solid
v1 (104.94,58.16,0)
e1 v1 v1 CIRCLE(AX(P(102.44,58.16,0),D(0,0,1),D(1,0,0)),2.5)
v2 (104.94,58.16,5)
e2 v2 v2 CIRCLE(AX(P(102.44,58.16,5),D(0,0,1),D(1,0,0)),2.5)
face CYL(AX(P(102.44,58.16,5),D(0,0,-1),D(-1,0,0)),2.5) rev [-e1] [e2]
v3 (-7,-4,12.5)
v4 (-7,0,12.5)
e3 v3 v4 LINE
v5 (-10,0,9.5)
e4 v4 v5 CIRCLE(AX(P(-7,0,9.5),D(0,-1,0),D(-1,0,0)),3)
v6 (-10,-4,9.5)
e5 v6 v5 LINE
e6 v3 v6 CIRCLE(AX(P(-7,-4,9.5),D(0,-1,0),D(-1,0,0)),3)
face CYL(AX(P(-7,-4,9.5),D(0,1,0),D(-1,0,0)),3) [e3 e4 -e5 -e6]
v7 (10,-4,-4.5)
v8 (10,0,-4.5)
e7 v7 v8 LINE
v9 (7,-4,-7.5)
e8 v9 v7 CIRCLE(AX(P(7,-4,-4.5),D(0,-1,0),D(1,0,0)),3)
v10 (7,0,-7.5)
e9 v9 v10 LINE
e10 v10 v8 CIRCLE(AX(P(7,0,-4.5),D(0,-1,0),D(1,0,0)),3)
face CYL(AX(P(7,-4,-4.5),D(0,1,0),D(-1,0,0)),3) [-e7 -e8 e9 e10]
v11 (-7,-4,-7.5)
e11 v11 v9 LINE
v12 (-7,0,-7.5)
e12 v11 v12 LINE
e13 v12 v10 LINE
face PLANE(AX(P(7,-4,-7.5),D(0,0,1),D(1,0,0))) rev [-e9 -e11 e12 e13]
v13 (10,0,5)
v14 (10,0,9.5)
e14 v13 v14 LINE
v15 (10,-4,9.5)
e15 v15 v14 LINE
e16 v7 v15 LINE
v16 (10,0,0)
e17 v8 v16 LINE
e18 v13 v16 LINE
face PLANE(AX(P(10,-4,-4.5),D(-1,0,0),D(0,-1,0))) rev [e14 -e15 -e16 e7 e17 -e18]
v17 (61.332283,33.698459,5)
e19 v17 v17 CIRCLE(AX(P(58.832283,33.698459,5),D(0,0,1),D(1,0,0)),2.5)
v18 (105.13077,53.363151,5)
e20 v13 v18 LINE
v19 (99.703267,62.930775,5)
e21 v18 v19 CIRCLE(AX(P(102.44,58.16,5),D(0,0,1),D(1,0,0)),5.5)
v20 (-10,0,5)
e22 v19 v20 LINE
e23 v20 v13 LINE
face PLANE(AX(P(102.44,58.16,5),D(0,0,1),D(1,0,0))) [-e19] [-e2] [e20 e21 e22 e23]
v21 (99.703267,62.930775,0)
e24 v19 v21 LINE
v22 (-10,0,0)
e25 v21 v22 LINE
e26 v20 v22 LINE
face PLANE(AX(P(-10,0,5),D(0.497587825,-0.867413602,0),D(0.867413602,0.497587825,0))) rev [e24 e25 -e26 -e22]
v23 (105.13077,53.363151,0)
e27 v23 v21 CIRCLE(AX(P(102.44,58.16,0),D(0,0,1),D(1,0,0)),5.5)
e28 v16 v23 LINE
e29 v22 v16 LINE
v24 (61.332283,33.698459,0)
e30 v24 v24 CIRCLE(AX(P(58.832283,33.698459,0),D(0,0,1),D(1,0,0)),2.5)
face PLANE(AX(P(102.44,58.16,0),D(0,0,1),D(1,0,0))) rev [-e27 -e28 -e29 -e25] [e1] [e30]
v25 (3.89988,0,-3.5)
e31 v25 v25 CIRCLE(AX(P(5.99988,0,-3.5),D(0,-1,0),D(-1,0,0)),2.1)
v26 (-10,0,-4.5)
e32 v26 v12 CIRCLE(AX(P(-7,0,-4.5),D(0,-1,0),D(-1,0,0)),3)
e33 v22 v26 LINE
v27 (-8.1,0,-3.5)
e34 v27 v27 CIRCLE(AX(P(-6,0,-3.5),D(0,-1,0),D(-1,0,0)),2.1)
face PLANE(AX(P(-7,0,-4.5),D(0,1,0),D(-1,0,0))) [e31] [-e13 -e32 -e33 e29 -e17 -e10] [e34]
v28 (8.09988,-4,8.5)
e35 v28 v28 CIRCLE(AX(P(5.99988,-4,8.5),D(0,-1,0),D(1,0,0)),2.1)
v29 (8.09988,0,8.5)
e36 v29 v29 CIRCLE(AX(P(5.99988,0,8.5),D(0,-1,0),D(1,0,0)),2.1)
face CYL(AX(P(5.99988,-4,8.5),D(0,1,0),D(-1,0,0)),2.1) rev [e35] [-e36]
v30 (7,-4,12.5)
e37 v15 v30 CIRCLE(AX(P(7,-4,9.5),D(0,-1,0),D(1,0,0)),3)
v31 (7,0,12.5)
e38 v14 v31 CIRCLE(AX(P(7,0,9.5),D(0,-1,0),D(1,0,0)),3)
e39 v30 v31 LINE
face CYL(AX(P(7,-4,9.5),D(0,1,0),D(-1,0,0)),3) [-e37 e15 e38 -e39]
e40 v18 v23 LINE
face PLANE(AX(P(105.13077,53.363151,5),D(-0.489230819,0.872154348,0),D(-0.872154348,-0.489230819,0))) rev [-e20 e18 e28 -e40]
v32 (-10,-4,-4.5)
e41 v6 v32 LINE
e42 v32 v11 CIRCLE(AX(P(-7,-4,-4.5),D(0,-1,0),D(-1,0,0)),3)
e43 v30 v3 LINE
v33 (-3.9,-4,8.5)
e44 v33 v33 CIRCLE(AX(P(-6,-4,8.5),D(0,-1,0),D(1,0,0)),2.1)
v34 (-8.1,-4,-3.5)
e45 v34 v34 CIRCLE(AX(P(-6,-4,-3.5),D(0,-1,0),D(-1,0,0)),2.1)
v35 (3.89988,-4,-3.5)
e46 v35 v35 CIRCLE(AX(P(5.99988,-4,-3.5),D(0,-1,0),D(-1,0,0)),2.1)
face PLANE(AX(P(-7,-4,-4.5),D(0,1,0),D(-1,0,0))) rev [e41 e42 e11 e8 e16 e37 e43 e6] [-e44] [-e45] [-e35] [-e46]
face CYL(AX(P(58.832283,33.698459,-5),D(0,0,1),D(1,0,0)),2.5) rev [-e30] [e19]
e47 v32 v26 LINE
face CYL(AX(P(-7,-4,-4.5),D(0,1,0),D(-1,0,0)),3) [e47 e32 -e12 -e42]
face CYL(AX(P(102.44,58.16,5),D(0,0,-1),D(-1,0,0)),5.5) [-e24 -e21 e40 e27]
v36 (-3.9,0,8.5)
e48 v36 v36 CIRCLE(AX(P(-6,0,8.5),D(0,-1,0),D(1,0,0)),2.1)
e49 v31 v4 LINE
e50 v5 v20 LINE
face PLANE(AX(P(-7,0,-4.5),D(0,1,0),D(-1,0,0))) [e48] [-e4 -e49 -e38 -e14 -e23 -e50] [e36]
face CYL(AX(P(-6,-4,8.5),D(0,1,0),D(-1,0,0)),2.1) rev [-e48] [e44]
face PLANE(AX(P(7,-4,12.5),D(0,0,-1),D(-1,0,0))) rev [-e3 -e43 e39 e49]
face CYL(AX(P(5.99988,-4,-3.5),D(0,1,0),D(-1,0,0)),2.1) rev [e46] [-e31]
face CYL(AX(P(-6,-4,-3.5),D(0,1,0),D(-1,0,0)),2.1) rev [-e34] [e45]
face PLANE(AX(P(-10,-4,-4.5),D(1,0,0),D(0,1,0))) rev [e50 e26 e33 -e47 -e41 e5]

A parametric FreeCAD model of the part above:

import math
import FreeCAD as App
import Part
import Sketcher
from FreeCAD import Vector
Q = App.Units.Quantity

doc = App.newDocument("Part")
body = doc.addObject("PartDesign::Body", "Body")

# Sketch on XY plane
sketch1 = doc.addObject("Sketcher::SketchObject", "Sketch")
body.addObject(sketch1)
sketch1.AttachmentSupport = (doc.XY_Plane, [""])
sketch1.MapMode = "FlatFace"
sketch1.addGeometry([
    Part.LineSegment(Vector(-10, 0, 0), Vector(10, 0, 0)),  # 0
    Part.LineSegment(Vector(10, 0, 0), Vector(105.13077, 53.363151, 0)),  # 1
    Part.ArcOfCircle(Part.Circle(Vector(102.44, 58.16, 0), Vector(0, 0, 1), 5.5), math.radians(-60.709962), math.radians(119.84054)),  # 2
    Part.LineSegment(Vector(99.703267, 62.930775, 0), Vector(-10, 0, 0)),  # 3
    Part.Circle(Vector(102.44, 58.16, 0), Vector(0, 0, 1), 2.5),  # 4
], False)
sketch1.addConstraint([
    Sketcher.Constraint("Coincident", 0, 2, 1, 1),
    Sketcher.Constraint("Tangent", 1, 2, 2, 1),
    Sketcher.Constraint("Tangent", 2, 2, 3, 1),
    Sketcher.Constraint("Coincident", 3, 2, 0, 1),
    Sketcher.Constraint("Horizontal", 0),
    Sketcher.Constraint("Coincident", 4, 3, 2, 3),
    Sketcher.Constraint("Symmetric", 0, 2, 3, 2, -1, 1),
    Sketcher.Constraint("Diameter", 4, Q("5 mm")),
    Sketcher.Constraint("Radius", 2, Q("5.5 mm")),
    Sketcher.Constraint("DistanceX", 0, 1, 0, 2, Q("20 mm")),
    Sketcher.Constraint("DistanceX", -1, 1, 2, 3, Q("102.44 mm")),
    Sketcher.Constraint("DistanceY", -1, 1, 2, 3, Q("58.16 mm")),
])
pad1 = doc.addObject("PartDesign::Pad", "Pad")
body.addObject(pad1)
pad1.Profile = sketch1
pad1.Length = 5

# Sketch on XZ plane
sketch2 = doc.addObject("Sketcher::SketchObject", "Sketch001")
body.addObject(sketch2)
sketch2.AttachmentSupport = (doc.XZ_Plane, [""])
sketch2.MapMode = "FlatFace"
sketch2.addGeometry([
    Part.LineSegment(Vector(-7, -7.5, 0), Vector(7, -7.5, 0)),  # 0
    Part.ArcOfCircle(Part.Circle(Vector(7, -4.5, 0), Vector(0, 0, 1), 3), math.radians(-90), math.radians(0)),  # 1
    Part.LineSegment(Vector(10, -4.5, 0), Vector(10, 9.5, 0)),  # 2
    Part.ArcOfCircle(Part.Circle(Vector(7, 9.5, 0), Vector(0, 0, 1), 3), math.radians(0), math.radians(90)),  # 3
    Part.LineSegment(Vector(7, 12.5, 0), Vector(-7, 12.5, 0)),  # 4
    Part.ArcOfCircle(Part.Circle(Vector(-7, 9.5, 0), Vector(0, 0, 1), 3), math.radians(90), math.radians(180)),  # 5
    Part.LineSegment(Vector(-10, 9.5, 0), Vector(-10, -4.5, 0)),  # 6
    Part.ArcOfCircle(Part.Circle(Vector(-7, -4.5, 0), Vector(0, 0, 1), 3), math.radians(180), math.radians(270)),  # 7
    Part.Circle(Vector(5.99988, -3.5, 0), Vector(0, 0, 1), 2.1),  # 8
    Part.Circle(Vector(-6, -3.5, 0), Vector(0, 0, 1), 2.1),  # 9
    Part.Circle(Vector(5.99988, 8.5, 0), Vector(0, 0, 1), 2.1),  # 10
    Part.Circle(Vector(-6, 8.5, 0), Vector(0, 0, 1), 2.1),  # 11
], False)
sketch2.addConstraint([
    Sketcher.Constraint("Tangent", 0, 2, 1, 1),
    Sketcher.Constraint("Tangent", 1, 2, 2, 1),
    Sketcher.Constraint("Tangent", 2, 2, 3, 1),
    Sketcher.Constraint("Tangent", 3, 2, 4, 1),
    Sketcher.Constraint("Tangent", 4, 2, 5, 1),
    Sketcher.Constraint("Tangent", 5, 2, 6, 1),
    Sketcher.Constraint("Tangent", 6, 2, 7, 1),
    Sketcher.Constraint("Tangent", 7, 2, 0, 1),
    Sketcher.Constraint("Horizontal", 0),
    Sketcher.Constraint("Vertical", 2),
    Sketcher.Constraint("Horizontal", 4),
    Sketcher.Constraint("Vertical", 6),
    Sketcher.Constraint("Equal", 1, 3),
    Sketcher.Constraint("Equal", 3, 5),
    Sketcher.Constraint("Equal", 5, 7),
    Sketcher.Constraint("Equal", 8, 9),
    Sketcher.Constraint("Equal", 9, 10),
    Sketcher.Constraint("Equal", 10, 11),
    Sketcher.Constraint("Horizontal", 8, 3, 9, 3),
    Sketcher.Constraint("Horizontal", 10, 3, 11, 3),
    Sketcher.Constraint("Vertical", 8, 3, 10, 3),
    Sketcher.Constraint("Vertical", 9, 3, 11, 3),
    Sketcher.Constraint("Equal", 4, 2),
    Sketcher.Constraint("Radius", 1, Q("3 mm")),
    Sketcher.Constraint("Diameter", 8, Q("4.2 mm")),
    Sketcher.Constraint("DistanceX", 0, 1, 0, 2, Q("14 mm")),
    Sketcher.Constraint("DistanceX", -1, 1, 1, 3, Q("7 mm")),
    Sketcher.Constraint("DistanceX", 9, 3, -1, 1, Q("6 mm")),
    Sketcher.Constraint("DistanceY", 1, 3, 8, 3, Q("1 mm")),
    Sketcher.Constraint("DistanceY", 10, 3, 3, 3, Q("1 mm")),
    Sketcher.Constraint("DistanceY", 1, 3, -1, 1, Q("4.5 mm")),
    Sketcher.Constraint("DistanceX", -1, 1, 8, 3, Q("5.99988 mm")),
])
pad2 = doc.addObject("PartDesign::Pad", "Pad001")
body.addObject(pad2)
pad2.Profile = sketch2
pad2.Length = 4

# Sketch on XY plane
sketch3 = doc.addObject("Sketcher::SketchObject", "Sketch002")
body.addObject(sketch3)
sketch3.AttachmentSupport = (doc.XY_Plane, [""])
sketch3.MapMode = "FlatFace"
sketch3.AttachmentOffset = App.Placement(Vector(0, 0, 5), App.Rotation())
sketch3.addGeometry(Part.Circle(Vector(58.832283, 33.698459, 0), Vector(0, 0, 1), 2.5), False)
sketch3.addConstraint([
    Sketcher.Constraint("Diameter", 0, Q("5 mm")),
    Sketcher.Constraint("DistanceY", -1, 1, 0, 3, Q("33.698459 mm")),
    Sketcher.Constraint("DistanceX", -1, 1, 0, 3, Q("58.832283 mm")),
])
pocket1 = doc.addObject("PartDesign::Pocket", "Pocket")
body.addObject(pocket1)
pocket1.Profile = sketch3
pocket1.Length = 10

doc.recompute()
